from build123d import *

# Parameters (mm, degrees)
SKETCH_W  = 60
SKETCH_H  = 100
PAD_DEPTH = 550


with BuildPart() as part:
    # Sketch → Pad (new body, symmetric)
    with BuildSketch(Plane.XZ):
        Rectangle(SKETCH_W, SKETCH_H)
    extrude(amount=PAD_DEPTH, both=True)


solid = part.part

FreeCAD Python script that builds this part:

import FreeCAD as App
import Part
import Sketcher

V = App.Vector
Q = App.Units.Quantity


def add_polygon(sketch, points):
    """Adds a closed chain of lines whose ends are joined by coincident constraints."""
    first, n = sketch.GeometryCount, len(points)
    for a, b in zip(points, points[1:] + points[:1]):
        sketch.addGeometry(Part.LineSegment(App.Vector(*a, 0), App.Vector(*b, 0)), False)
    for i in range(n):
        sketch.addConstraint(Sketcher.Constraint("Coincident", first + i, 2, first + (i + 1) % n, 1))

doc = App.newDocument("Part")
body = doc.addObject("PartDesign::Body", "Body")

# Sketch on XZ plane
sketch1 = body.newObject("Sketcher::SketchObject", "Sketch")
sketch1.AttachmentSupport = (doc.getObject("XZ_Plane"), [""])
sketch1.MapMode = "FlatFace"
add_polygon(sketch1, [(-30, 50), (-30, -50), (30, -50), (30, 50)])  # lines 0-3
sketch1.addConstraint(Sketcher.Constraint("Vertical", 0))
sketch1.addConstraint(Sketcher.Constraint("Horizontal", 1))
sketch1.addConstraint(Sketcher.Constraint("Vertical", 2))
sketch1.addConstraint(Sketcher.Constraint("Horizontal", 3))
sketch1.addConstraint(Sketcher.Constraint("Symmetric", 0, 2, 2, 2, -1, 1))
sketch1.addConstraint(Sketcher.Constraint("DistanceX", 1, 1, 1, 2, Q("60 mm")))
sketch1.addConstraint(Sketcher.Constraint("DistanceY", 0, 2, 0, 1, Q("100 mm")))
pad1 = body.newObject("PartDesign::Pad", "Pad")
pad1.Profile = sketch1
pad1.Length = 1100
pad1.Midplane = True

doc.recompute()
